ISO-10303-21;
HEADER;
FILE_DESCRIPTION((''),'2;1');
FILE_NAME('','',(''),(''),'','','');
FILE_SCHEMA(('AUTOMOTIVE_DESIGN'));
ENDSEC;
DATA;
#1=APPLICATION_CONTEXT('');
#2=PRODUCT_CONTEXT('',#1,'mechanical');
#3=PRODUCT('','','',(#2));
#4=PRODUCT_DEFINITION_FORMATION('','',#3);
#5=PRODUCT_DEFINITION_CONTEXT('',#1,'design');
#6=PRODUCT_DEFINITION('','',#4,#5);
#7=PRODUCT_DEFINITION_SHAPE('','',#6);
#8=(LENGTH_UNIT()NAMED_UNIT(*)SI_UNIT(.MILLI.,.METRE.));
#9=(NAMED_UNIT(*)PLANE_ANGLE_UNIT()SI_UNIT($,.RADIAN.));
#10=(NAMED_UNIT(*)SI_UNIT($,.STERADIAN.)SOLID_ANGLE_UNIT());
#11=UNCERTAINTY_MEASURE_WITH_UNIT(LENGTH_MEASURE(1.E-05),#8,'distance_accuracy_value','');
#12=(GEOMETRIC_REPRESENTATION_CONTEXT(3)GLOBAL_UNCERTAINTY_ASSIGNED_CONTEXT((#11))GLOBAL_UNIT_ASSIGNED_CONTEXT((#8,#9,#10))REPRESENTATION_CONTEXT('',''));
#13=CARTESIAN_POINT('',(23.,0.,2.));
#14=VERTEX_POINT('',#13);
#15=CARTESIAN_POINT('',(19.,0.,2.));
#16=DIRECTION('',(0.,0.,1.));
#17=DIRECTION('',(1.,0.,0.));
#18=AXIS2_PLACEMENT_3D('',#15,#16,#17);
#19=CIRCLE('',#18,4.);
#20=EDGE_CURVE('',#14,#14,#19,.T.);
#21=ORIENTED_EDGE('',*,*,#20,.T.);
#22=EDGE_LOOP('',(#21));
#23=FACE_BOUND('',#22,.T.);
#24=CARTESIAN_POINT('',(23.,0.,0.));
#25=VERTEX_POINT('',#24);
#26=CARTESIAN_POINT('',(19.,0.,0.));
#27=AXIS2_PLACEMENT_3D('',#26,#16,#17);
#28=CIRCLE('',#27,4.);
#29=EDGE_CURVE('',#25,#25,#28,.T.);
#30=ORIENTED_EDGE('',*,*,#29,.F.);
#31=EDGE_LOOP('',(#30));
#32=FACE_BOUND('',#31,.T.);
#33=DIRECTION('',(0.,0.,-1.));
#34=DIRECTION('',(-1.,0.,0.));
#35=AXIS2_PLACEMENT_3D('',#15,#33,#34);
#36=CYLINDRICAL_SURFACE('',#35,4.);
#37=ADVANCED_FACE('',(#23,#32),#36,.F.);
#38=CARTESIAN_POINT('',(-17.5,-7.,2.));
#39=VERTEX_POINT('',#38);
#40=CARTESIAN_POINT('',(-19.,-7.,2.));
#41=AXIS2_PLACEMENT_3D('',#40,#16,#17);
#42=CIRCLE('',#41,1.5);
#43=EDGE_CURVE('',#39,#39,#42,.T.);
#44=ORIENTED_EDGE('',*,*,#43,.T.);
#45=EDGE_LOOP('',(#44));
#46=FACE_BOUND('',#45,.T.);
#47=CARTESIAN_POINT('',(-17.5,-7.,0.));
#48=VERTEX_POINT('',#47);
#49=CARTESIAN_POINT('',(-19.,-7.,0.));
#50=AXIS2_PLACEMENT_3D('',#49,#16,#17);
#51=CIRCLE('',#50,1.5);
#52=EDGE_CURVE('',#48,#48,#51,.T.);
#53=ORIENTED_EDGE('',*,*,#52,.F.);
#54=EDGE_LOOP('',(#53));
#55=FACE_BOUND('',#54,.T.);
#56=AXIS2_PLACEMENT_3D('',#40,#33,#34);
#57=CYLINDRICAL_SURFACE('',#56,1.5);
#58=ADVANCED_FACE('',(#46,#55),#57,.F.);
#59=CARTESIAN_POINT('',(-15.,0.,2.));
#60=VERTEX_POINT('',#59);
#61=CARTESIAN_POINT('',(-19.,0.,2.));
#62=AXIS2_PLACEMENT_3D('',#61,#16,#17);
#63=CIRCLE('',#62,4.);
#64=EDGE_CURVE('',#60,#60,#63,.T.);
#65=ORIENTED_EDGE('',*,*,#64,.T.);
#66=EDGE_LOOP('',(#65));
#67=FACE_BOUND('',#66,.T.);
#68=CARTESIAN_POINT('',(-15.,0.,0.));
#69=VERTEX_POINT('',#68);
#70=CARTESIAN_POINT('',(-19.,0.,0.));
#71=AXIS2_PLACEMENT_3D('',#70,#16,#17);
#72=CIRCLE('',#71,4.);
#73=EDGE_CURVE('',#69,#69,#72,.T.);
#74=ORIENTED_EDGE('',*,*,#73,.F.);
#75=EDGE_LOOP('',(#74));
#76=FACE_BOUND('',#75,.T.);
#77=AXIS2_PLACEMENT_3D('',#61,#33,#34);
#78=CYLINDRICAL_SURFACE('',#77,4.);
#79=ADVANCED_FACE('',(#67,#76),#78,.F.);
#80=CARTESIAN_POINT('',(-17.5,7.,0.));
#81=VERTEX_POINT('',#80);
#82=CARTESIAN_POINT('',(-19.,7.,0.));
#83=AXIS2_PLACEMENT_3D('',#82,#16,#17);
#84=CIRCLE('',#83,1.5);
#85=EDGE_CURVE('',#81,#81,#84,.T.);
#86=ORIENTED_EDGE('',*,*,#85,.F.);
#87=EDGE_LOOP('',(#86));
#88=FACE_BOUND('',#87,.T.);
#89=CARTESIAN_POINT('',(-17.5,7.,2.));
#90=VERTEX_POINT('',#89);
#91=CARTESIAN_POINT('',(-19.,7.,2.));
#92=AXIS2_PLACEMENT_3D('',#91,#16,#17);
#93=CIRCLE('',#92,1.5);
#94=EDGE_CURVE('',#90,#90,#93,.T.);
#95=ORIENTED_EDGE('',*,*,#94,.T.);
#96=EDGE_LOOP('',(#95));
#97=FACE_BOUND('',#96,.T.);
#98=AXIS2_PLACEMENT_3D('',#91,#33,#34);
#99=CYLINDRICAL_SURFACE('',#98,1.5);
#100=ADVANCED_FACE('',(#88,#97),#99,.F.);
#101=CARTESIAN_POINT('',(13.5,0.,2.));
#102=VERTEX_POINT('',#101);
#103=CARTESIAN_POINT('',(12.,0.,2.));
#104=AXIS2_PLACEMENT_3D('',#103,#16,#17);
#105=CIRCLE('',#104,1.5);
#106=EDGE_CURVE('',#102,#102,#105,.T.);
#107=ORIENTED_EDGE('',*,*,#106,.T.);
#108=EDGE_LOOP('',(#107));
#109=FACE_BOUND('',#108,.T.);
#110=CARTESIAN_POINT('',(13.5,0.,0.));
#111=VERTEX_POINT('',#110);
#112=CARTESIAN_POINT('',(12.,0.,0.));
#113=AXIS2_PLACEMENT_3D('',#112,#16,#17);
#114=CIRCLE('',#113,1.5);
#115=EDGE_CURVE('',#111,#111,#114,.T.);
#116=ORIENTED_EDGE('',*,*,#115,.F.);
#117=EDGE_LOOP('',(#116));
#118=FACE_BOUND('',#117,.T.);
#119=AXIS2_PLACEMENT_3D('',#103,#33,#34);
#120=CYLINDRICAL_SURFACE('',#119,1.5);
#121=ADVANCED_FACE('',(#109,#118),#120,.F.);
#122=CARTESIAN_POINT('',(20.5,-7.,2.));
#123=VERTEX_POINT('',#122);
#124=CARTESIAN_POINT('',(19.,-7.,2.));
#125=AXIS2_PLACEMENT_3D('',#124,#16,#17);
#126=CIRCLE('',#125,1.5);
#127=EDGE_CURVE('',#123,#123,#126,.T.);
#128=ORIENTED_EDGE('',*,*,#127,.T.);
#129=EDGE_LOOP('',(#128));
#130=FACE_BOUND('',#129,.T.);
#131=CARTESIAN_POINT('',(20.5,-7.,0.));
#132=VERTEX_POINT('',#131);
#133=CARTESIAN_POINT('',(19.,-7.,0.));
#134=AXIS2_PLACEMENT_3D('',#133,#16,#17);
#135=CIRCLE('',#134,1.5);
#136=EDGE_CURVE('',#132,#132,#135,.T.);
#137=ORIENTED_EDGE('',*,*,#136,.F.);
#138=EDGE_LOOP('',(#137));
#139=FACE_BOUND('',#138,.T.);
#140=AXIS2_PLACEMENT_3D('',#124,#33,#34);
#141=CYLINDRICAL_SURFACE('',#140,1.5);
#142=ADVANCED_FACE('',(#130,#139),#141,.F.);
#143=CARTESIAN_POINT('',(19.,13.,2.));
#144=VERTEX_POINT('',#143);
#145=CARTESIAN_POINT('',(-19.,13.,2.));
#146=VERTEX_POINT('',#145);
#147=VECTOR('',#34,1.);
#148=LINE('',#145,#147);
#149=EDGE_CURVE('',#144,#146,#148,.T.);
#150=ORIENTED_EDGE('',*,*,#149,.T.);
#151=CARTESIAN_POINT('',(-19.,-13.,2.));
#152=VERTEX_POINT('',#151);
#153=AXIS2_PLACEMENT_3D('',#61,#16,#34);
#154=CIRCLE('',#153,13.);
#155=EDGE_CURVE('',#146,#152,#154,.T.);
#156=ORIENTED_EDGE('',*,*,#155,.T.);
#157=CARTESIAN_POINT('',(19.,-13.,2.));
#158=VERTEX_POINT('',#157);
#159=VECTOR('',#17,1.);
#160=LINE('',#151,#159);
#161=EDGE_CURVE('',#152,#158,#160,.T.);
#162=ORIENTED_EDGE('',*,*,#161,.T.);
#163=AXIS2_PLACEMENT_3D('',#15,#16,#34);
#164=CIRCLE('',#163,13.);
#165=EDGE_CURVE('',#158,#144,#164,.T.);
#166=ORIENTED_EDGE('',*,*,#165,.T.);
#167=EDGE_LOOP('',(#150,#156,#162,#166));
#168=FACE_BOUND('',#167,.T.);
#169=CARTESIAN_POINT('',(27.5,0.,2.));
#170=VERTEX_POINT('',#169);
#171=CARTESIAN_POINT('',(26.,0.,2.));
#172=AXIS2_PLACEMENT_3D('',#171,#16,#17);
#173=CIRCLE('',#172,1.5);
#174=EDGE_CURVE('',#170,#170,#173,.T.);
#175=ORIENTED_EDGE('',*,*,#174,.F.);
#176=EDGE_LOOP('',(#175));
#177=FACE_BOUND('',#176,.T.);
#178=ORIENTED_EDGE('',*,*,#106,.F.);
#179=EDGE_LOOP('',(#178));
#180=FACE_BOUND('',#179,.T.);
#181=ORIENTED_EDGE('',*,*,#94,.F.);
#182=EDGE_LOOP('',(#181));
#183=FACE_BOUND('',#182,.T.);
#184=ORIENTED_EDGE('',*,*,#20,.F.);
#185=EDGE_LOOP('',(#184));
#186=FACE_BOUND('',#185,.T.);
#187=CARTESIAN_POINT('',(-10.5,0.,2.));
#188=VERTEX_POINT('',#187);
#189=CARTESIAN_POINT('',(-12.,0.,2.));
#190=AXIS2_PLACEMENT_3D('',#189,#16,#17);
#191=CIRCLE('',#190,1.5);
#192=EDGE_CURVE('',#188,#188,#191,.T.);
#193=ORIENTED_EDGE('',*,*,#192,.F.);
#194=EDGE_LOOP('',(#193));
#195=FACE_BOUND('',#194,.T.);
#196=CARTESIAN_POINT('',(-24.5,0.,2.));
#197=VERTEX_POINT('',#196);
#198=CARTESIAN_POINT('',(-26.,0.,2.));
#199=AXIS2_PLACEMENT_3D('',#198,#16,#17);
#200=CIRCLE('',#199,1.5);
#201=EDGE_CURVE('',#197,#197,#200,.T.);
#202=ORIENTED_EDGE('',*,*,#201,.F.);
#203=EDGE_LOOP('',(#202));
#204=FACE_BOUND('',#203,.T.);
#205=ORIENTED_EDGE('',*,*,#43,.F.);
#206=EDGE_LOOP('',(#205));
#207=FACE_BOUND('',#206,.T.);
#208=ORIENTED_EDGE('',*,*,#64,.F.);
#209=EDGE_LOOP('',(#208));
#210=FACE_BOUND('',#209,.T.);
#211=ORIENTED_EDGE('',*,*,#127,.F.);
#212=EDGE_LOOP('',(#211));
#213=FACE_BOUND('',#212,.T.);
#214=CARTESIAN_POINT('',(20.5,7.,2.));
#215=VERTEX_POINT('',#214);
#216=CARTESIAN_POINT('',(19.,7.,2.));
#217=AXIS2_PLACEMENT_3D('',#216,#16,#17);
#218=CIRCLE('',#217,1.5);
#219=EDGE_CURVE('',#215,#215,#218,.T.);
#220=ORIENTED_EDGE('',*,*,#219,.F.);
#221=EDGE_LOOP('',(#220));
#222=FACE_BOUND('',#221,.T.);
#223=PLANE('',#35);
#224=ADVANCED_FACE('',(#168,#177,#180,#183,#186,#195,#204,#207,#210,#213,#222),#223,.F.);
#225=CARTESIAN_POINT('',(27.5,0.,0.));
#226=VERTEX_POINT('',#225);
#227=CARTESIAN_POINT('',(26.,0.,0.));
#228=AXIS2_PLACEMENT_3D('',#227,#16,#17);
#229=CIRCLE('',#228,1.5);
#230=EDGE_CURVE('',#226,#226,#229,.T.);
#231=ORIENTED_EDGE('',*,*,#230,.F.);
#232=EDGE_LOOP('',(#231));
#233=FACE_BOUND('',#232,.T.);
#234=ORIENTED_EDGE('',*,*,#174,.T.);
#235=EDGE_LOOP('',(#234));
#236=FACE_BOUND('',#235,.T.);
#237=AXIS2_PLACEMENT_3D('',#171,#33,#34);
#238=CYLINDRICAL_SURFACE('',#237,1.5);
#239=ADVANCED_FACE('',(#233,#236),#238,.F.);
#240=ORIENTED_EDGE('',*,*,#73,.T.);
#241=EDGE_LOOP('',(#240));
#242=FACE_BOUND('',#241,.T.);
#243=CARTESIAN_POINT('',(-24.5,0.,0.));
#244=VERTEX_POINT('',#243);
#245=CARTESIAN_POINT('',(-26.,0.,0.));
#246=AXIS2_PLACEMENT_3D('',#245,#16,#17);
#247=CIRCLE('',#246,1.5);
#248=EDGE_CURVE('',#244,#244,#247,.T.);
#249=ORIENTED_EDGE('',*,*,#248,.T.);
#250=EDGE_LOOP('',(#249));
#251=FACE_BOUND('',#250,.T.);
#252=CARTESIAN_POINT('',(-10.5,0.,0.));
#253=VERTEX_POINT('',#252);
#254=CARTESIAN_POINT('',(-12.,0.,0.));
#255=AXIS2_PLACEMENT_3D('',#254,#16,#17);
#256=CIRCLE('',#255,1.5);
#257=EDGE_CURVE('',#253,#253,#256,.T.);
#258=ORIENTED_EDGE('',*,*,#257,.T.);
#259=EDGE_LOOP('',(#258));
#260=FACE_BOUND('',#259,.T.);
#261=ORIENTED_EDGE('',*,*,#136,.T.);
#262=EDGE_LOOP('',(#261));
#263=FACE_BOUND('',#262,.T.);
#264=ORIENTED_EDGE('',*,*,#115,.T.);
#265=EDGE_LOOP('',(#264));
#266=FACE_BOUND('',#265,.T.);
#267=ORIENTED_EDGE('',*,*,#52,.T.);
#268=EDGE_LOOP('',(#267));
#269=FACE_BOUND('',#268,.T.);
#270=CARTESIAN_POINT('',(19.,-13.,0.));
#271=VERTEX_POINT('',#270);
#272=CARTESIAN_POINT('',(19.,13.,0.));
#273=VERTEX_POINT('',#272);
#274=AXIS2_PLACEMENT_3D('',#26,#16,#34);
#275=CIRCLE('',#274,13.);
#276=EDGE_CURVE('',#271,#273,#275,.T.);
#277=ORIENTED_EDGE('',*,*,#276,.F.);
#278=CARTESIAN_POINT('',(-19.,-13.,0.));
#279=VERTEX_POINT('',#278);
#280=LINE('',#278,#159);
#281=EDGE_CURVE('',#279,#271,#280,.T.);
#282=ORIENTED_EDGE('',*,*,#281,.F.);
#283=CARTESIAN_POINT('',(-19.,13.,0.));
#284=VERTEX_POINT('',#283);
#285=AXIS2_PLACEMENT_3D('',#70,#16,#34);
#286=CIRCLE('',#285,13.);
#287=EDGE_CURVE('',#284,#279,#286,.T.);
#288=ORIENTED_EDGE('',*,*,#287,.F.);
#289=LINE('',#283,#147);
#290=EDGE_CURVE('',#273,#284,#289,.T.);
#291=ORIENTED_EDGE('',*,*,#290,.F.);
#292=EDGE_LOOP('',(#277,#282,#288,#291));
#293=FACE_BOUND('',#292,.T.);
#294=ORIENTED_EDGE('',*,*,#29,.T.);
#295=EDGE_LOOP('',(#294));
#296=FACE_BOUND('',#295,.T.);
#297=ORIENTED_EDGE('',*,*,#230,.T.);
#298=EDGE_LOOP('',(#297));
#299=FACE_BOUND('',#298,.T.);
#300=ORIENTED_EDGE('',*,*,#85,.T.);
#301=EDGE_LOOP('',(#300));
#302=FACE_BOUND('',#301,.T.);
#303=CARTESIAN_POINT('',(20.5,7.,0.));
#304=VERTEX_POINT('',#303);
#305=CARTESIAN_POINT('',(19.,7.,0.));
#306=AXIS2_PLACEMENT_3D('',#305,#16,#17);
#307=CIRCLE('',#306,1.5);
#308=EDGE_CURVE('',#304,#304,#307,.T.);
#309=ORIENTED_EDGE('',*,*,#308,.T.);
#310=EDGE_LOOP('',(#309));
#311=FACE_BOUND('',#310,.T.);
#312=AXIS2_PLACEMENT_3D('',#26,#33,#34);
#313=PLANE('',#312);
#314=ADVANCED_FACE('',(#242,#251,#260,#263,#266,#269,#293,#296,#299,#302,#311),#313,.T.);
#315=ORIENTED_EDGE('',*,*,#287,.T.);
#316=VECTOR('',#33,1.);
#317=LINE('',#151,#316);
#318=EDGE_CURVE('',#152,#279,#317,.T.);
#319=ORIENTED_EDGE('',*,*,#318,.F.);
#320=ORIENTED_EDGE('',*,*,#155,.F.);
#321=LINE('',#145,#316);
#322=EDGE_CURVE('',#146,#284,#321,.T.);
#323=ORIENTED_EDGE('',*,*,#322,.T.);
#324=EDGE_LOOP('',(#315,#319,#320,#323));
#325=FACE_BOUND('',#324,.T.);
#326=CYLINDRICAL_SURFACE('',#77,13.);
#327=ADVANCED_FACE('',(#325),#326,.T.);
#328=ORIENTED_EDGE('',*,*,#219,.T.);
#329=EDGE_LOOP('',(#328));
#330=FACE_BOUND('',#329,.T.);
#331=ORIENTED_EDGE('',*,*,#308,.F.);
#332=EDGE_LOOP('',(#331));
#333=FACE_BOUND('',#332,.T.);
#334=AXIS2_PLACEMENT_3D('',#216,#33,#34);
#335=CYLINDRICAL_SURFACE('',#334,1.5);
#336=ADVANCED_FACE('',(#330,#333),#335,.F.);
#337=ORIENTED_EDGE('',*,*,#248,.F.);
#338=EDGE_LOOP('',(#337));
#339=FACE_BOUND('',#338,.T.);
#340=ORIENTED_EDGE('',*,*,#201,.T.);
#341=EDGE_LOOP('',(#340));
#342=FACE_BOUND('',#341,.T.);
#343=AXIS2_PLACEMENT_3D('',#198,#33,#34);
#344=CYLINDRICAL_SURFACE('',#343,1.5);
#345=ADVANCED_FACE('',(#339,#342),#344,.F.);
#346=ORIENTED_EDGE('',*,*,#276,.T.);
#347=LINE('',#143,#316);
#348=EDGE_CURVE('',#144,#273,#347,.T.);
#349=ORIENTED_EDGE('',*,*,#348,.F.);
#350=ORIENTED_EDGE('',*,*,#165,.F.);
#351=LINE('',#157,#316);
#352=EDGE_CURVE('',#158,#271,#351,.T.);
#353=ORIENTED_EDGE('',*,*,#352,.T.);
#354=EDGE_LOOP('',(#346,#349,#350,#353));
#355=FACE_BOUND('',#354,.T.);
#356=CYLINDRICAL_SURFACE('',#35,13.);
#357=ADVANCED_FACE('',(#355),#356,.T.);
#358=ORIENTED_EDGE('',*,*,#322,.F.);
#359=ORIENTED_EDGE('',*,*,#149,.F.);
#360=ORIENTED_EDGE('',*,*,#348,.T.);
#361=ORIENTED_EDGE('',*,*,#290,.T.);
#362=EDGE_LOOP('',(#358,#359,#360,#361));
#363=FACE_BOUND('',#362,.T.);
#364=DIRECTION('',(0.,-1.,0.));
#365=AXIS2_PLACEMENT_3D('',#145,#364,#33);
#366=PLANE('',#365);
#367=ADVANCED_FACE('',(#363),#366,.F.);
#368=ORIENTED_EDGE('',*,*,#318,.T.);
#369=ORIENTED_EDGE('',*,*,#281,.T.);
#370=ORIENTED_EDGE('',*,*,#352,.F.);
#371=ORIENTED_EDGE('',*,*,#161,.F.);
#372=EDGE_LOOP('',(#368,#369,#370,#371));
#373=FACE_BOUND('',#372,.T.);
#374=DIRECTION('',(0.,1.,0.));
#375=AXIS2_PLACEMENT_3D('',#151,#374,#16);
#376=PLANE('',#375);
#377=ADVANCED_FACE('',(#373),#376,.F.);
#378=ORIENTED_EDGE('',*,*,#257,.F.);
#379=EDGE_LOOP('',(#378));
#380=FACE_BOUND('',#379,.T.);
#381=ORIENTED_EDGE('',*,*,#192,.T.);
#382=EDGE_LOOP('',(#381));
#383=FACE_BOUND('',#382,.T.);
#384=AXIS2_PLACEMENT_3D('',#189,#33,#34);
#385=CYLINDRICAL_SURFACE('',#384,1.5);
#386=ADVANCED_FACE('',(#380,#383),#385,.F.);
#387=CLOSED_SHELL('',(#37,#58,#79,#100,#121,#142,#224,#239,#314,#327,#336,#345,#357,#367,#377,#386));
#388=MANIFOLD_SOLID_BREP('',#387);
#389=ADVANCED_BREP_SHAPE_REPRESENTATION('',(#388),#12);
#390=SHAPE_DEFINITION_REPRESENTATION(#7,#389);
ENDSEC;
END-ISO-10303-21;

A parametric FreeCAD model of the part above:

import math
import FreeCAD as App
import Part
import Sketcher
Q = App.Units.Quantity

doc = App.newDocument("Part")
body = doc.addObject("PartDesign::Body", "Body")

sketch1 = body.newObject("Sketcher::SketchObject", "Sketch")
sketch1.AttachmentSupport = (doc.getObject("XY_Plane"), [""])
sketch1.MapMode = "FlatFace"
sketch1.addGeometry([
    Part.LineSegment(App.Vector(-19, -13, 0), App.Vector(19, -13, 0)),
    Part.ArcOfCircle(Part.Circle(App.Vector(19, 0, 0), App.Vector(0, 0, 1), 13), math.radians(-90), math.radians(90)),
    Part.LineSegment(App.Vector(19, 13, 0), App.Vector(-19, 13, 0)),
    Part.ArcOfCircle(Part.Circle(App.Vector(-19, 0, 0), App.Vector(0, 0, 1), 13), math.radians(90), math.radians(270)),
    Part.Circle(App.Vector(-19, -7, 0), App.Vector(0, 0, 1), 1.5),
    Part.Circle(App.Vector(19, -7, 0), App.Vector(0, 0, 1), 1.5),
    Part.Circle(App.Vector(-26, 0, 0), App.Vector(0, 0, 1), 1.5),
    Part.Circle(App.Vector(-19, 0, 0), App.Vector(0, 0, 1), 4),
    Part.Circle(App.Vector(-12, 0, 0), App.Vector(0, 0, 1), 1.5),
    Part.Circle(App.Vector(-19, 7, 0), App.Vector(0, 0, 1), 1.5),
    Part.Circle(App.Vector(12, 0, 0), App.Vector(0, 0, 1), 1.5),
    Part.Circle(App.Vector(19, 0, 0), App.Vector(0, 0, 1), 4),
    Part.Circle(App.Vector(26, 0, 0), App.Vector(0, 0, 1), 1.5),
    Part.Circle(App.Vector(19, 7, 0), App.Vector(0, 0, 1), 1.5),
], False)
sketch1.addConstraint([
    Sketcher.Constraint("Tangent", 0, 2, 1, 1),
    Sketcher.Constraint("Tangent", 1, 2, 2, 1),
    Sketcher.Constraint("Tangent", 2, 2, 3, 1),
    Sketcher.Constraint("Tangent", 3, 2, 0, 1),
    Sketcher.Constraint("Horizontal", 0),
    Sketcher.Constraint("Horizontal", 2),
    Sketcher.Constraint("Coincident", 7, 3, 3, 3),
    Sketcher.Constraint("Coincident", 11, 3, 1, 3),
    Sketcher.Constraint("Equal", 4, 5),
    Sketcher.Constraint("Equal", 5, 6),
    Sketcher.Constraint("Equal", 6, 8),
    Sketcher.Constraint("Equal", 8, 9),
    Sketcher.Constraint("Equal", 9, 10),
    Sketcher.Constraint("Equal", 7, 11),
    Sketcher.Constraint("Equal", 10, 12),
    Sketcher.Constraint("Equal", 12, 13),
    Sketcher.Constraint("Symmetric", 1, 3, 3, 3, -1, 1),
    Sketcher.Constraint("Symmetric", 5, 3, 9, 3, -1, 1),
    Sketcher.Constraint("Symmetric", 8, 3, 10, 3, -1, 1),
    Sketcher.Constraint("Symmetric", 6, 3, 12, 3, -1, 1),
    Sketcher.Constraint("Symmetric", 4, 3, 13, 3, -1, 1),
    Sketcher.Constraint("Symmetric", 4, 3, 5, 3, -2),
    Sketcher.Constraint("PointOnObject", 6, 3, -1),
    Sketcher.Constraint("PointOnObject", 8, 3, -1),
    Sketcher.Constraint("Vertical", 3, 3, 4, 3),
    Sketcher.Constraint("Diameter", 4, Q("3 mm")),
    Sketcher.Constraint("Diameter", 7, Q("8 mm")),
    Sketcher.Constraint("Radius", 1, Q("13 mm")),
    Sketcher.Constraint("DistanceX", 0, 1, 0, 2, Q("38 mm")),
    Sketcher.Constraint("DistanceY", 4, 3, -1, 1, Q("7 mm")),
    Sketcher.Constraint("DistanceX", 6, 3, -1, 1, Q("26 mm")),
    Sketcher.Constraint("DistanceX", 8, 3, -1, 1, Q("12 mm")),
])
pad1 = body.newObject("PartDesign::Pad", "Pad")
pad1.Profile = sketch1
pad1.Length = 2

doc.recompute()
